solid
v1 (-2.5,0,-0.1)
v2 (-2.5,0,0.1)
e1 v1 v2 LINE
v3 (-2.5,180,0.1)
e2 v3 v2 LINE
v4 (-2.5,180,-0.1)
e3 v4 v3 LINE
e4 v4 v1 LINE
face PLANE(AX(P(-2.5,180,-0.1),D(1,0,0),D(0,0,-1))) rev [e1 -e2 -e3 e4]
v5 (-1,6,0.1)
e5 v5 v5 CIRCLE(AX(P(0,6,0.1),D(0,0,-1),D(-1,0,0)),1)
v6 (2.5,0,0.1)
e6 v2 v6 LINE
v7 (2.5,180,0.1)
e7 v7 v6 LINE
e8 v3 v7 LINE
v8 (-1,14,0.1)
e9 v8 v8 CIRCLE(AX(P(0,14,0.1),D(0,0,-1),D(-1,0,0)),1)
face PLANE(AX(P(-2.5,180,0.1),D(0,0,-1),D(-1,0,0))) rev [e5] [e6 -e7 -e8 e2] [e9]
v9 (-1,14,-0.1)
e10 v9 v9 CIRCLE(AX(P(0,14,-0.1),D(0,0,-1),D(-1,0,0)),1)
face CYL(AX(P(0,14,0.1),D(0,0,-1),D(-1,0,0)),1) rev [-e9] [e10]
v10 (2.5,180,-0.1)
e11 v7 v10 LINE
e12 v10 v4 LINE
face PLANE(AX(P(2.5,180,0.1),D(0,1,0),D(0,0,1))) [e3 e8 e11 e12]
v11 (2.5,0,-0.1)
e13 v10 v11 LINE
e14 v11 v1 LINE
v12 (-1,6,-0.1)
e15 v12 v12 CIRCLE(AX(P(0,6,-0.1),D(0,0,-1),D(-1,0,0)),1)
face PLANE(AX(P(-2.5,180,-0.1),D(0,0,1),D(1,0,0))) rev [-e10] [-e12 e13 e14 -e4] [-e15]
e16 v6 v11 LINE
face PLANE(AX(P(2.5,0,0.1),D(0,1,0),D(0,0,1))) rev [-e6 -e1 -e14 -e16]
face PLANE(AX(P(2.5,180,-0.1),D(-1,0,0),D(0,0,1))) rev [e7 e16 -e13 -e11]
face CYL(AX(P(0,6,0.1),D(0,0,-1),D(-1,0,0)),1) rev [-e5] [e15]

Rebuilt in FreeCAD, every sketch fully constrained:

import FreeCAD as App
import Part
import Sketcher
Q = App.Units.Quantity


def add_polygon(sketch, points):
    """Adds a closed chain of lines whose ends are joined by coincident constraints."""
    first, n = sketch.GeometryCount, len(points)
    for a, b in zip(points, points[1:] + points[:1]):
        sketch.addGeometry(Part.LineSegment(App.Vector(*a, 0), App.Vector(*b, 0)), False)
    for i in range(n):
        sketch.addConstraint(Sketcher.Constraint("Coincident", first + i, 2, first + (i + 1) % n, 1))

doc = App.newDocument("Part")
params = doc.addObject("Spreadsheet::Sheet", "Params")
for row, (alias, value) in enumerate([
    ("sketch1_width", "5 mm"),
    ("sketch1_height", "0.2 mm"),
    ("pad1_length", "180 mm"),
    ("sketch2_diameter", "2 mm"),
], start=1):
    params.set(f"A{row}", alias)
    params.set(f"B{row}", "=" + value)
    params.setAlias(f"B{row}", alias)

body = doc.addObject("PartDesign::Body", "Body")

sketch1 = doc.addObject("Sketcher::SketchObject", "Sketch")
body.addObject(sketch1)
sketch1.AttachmentSupport = (doc.XZ_Plane, [""])
sketch1.MapMode = "FlatFace"
add_polygon(sketch1, [(-2.5, -0.1), (-2.5, 0.1), (2.5, 0.1), (2.5, -0.1)])
sketch1.addConstraint([
    Sketcher.Constraint("Vertical", 0),
    Sketcher.Constraint("Horizontal", 1),
    Sketcher.Constraint("Vertical", 2),
    Sketcher.Constraint("Horizontal", 3),
    Sketcher.Constraint("Symmetric", 0, 2, 2, 2, -1, 1),
    Sketcher.Constraint("DistanceX", 1, 1, 1, 2, Q("5 mm")),
    Sketcher.Constraint("DistanceY", 0, 1, 0, 2, Q("0.2 mm")),
])
sketch1.setExpression("Constraints[9]", "Params.sketch1_width")
sketch1.setExpression("Constraints[10]", "Params.sketch1_height")
pad1 = doc.addObject("PartDesign::Pad", "Pad")
body.addObject(pad1)
pad1.Profile = sketch1
pad1.setExpression("Length", "Params.pad1_length")
pad1.Reversed = True

sketch2 = doc.addObject("Sketcher::SketchObject", "Sketch001")
body.addObject(sketch2)
sketch2.AttachmentSupport = (doc.XY_Plane, [""])
sketch2.MapMode = "FlatFace"
sketch2.AttachmentOffset = App.Placement(App.Vector(0, 0, -0.1), App.Rotation())
sketch2.addGeometry([
    Part.Circle(App.Vector(0, 6, 0), App.Vector(0, 0, 1), 1),
    Part.Circle(App.Vector(0, 14, 0), App.Vector(0, 0, 1), 1),
], False)
sketch2.addConstraint([
    Sketcher.Constraint("Equal", 0, 1),
    Sketcher.Constraint("PointOnObject", 0, 3, -2),
    Sketcher.Constraint("PointOnObject", 1, 3, -2),
    Sketcher.Constraint("Diameter", 0, Q("2 mm")),
    Sketcher.Constraint("DistanceY", -1, 1, 0, 3, Q("6 mm")),
    Sketcher.Constraint("DistanceY", -1, 1, 1, 3, Q("14 mm")),
])
sketch2.setExpression("Constraints[3]", "Params.sketch2_diameter")
pocket1 = doc.addObject("PartDesign::Pocket", "Pocket")
body.addObject(pocket1)
pocket1.Profile = sketch2
pocket1.Type = "ThroughAll"
pocket1.Reversed = True

doc.recompute()
